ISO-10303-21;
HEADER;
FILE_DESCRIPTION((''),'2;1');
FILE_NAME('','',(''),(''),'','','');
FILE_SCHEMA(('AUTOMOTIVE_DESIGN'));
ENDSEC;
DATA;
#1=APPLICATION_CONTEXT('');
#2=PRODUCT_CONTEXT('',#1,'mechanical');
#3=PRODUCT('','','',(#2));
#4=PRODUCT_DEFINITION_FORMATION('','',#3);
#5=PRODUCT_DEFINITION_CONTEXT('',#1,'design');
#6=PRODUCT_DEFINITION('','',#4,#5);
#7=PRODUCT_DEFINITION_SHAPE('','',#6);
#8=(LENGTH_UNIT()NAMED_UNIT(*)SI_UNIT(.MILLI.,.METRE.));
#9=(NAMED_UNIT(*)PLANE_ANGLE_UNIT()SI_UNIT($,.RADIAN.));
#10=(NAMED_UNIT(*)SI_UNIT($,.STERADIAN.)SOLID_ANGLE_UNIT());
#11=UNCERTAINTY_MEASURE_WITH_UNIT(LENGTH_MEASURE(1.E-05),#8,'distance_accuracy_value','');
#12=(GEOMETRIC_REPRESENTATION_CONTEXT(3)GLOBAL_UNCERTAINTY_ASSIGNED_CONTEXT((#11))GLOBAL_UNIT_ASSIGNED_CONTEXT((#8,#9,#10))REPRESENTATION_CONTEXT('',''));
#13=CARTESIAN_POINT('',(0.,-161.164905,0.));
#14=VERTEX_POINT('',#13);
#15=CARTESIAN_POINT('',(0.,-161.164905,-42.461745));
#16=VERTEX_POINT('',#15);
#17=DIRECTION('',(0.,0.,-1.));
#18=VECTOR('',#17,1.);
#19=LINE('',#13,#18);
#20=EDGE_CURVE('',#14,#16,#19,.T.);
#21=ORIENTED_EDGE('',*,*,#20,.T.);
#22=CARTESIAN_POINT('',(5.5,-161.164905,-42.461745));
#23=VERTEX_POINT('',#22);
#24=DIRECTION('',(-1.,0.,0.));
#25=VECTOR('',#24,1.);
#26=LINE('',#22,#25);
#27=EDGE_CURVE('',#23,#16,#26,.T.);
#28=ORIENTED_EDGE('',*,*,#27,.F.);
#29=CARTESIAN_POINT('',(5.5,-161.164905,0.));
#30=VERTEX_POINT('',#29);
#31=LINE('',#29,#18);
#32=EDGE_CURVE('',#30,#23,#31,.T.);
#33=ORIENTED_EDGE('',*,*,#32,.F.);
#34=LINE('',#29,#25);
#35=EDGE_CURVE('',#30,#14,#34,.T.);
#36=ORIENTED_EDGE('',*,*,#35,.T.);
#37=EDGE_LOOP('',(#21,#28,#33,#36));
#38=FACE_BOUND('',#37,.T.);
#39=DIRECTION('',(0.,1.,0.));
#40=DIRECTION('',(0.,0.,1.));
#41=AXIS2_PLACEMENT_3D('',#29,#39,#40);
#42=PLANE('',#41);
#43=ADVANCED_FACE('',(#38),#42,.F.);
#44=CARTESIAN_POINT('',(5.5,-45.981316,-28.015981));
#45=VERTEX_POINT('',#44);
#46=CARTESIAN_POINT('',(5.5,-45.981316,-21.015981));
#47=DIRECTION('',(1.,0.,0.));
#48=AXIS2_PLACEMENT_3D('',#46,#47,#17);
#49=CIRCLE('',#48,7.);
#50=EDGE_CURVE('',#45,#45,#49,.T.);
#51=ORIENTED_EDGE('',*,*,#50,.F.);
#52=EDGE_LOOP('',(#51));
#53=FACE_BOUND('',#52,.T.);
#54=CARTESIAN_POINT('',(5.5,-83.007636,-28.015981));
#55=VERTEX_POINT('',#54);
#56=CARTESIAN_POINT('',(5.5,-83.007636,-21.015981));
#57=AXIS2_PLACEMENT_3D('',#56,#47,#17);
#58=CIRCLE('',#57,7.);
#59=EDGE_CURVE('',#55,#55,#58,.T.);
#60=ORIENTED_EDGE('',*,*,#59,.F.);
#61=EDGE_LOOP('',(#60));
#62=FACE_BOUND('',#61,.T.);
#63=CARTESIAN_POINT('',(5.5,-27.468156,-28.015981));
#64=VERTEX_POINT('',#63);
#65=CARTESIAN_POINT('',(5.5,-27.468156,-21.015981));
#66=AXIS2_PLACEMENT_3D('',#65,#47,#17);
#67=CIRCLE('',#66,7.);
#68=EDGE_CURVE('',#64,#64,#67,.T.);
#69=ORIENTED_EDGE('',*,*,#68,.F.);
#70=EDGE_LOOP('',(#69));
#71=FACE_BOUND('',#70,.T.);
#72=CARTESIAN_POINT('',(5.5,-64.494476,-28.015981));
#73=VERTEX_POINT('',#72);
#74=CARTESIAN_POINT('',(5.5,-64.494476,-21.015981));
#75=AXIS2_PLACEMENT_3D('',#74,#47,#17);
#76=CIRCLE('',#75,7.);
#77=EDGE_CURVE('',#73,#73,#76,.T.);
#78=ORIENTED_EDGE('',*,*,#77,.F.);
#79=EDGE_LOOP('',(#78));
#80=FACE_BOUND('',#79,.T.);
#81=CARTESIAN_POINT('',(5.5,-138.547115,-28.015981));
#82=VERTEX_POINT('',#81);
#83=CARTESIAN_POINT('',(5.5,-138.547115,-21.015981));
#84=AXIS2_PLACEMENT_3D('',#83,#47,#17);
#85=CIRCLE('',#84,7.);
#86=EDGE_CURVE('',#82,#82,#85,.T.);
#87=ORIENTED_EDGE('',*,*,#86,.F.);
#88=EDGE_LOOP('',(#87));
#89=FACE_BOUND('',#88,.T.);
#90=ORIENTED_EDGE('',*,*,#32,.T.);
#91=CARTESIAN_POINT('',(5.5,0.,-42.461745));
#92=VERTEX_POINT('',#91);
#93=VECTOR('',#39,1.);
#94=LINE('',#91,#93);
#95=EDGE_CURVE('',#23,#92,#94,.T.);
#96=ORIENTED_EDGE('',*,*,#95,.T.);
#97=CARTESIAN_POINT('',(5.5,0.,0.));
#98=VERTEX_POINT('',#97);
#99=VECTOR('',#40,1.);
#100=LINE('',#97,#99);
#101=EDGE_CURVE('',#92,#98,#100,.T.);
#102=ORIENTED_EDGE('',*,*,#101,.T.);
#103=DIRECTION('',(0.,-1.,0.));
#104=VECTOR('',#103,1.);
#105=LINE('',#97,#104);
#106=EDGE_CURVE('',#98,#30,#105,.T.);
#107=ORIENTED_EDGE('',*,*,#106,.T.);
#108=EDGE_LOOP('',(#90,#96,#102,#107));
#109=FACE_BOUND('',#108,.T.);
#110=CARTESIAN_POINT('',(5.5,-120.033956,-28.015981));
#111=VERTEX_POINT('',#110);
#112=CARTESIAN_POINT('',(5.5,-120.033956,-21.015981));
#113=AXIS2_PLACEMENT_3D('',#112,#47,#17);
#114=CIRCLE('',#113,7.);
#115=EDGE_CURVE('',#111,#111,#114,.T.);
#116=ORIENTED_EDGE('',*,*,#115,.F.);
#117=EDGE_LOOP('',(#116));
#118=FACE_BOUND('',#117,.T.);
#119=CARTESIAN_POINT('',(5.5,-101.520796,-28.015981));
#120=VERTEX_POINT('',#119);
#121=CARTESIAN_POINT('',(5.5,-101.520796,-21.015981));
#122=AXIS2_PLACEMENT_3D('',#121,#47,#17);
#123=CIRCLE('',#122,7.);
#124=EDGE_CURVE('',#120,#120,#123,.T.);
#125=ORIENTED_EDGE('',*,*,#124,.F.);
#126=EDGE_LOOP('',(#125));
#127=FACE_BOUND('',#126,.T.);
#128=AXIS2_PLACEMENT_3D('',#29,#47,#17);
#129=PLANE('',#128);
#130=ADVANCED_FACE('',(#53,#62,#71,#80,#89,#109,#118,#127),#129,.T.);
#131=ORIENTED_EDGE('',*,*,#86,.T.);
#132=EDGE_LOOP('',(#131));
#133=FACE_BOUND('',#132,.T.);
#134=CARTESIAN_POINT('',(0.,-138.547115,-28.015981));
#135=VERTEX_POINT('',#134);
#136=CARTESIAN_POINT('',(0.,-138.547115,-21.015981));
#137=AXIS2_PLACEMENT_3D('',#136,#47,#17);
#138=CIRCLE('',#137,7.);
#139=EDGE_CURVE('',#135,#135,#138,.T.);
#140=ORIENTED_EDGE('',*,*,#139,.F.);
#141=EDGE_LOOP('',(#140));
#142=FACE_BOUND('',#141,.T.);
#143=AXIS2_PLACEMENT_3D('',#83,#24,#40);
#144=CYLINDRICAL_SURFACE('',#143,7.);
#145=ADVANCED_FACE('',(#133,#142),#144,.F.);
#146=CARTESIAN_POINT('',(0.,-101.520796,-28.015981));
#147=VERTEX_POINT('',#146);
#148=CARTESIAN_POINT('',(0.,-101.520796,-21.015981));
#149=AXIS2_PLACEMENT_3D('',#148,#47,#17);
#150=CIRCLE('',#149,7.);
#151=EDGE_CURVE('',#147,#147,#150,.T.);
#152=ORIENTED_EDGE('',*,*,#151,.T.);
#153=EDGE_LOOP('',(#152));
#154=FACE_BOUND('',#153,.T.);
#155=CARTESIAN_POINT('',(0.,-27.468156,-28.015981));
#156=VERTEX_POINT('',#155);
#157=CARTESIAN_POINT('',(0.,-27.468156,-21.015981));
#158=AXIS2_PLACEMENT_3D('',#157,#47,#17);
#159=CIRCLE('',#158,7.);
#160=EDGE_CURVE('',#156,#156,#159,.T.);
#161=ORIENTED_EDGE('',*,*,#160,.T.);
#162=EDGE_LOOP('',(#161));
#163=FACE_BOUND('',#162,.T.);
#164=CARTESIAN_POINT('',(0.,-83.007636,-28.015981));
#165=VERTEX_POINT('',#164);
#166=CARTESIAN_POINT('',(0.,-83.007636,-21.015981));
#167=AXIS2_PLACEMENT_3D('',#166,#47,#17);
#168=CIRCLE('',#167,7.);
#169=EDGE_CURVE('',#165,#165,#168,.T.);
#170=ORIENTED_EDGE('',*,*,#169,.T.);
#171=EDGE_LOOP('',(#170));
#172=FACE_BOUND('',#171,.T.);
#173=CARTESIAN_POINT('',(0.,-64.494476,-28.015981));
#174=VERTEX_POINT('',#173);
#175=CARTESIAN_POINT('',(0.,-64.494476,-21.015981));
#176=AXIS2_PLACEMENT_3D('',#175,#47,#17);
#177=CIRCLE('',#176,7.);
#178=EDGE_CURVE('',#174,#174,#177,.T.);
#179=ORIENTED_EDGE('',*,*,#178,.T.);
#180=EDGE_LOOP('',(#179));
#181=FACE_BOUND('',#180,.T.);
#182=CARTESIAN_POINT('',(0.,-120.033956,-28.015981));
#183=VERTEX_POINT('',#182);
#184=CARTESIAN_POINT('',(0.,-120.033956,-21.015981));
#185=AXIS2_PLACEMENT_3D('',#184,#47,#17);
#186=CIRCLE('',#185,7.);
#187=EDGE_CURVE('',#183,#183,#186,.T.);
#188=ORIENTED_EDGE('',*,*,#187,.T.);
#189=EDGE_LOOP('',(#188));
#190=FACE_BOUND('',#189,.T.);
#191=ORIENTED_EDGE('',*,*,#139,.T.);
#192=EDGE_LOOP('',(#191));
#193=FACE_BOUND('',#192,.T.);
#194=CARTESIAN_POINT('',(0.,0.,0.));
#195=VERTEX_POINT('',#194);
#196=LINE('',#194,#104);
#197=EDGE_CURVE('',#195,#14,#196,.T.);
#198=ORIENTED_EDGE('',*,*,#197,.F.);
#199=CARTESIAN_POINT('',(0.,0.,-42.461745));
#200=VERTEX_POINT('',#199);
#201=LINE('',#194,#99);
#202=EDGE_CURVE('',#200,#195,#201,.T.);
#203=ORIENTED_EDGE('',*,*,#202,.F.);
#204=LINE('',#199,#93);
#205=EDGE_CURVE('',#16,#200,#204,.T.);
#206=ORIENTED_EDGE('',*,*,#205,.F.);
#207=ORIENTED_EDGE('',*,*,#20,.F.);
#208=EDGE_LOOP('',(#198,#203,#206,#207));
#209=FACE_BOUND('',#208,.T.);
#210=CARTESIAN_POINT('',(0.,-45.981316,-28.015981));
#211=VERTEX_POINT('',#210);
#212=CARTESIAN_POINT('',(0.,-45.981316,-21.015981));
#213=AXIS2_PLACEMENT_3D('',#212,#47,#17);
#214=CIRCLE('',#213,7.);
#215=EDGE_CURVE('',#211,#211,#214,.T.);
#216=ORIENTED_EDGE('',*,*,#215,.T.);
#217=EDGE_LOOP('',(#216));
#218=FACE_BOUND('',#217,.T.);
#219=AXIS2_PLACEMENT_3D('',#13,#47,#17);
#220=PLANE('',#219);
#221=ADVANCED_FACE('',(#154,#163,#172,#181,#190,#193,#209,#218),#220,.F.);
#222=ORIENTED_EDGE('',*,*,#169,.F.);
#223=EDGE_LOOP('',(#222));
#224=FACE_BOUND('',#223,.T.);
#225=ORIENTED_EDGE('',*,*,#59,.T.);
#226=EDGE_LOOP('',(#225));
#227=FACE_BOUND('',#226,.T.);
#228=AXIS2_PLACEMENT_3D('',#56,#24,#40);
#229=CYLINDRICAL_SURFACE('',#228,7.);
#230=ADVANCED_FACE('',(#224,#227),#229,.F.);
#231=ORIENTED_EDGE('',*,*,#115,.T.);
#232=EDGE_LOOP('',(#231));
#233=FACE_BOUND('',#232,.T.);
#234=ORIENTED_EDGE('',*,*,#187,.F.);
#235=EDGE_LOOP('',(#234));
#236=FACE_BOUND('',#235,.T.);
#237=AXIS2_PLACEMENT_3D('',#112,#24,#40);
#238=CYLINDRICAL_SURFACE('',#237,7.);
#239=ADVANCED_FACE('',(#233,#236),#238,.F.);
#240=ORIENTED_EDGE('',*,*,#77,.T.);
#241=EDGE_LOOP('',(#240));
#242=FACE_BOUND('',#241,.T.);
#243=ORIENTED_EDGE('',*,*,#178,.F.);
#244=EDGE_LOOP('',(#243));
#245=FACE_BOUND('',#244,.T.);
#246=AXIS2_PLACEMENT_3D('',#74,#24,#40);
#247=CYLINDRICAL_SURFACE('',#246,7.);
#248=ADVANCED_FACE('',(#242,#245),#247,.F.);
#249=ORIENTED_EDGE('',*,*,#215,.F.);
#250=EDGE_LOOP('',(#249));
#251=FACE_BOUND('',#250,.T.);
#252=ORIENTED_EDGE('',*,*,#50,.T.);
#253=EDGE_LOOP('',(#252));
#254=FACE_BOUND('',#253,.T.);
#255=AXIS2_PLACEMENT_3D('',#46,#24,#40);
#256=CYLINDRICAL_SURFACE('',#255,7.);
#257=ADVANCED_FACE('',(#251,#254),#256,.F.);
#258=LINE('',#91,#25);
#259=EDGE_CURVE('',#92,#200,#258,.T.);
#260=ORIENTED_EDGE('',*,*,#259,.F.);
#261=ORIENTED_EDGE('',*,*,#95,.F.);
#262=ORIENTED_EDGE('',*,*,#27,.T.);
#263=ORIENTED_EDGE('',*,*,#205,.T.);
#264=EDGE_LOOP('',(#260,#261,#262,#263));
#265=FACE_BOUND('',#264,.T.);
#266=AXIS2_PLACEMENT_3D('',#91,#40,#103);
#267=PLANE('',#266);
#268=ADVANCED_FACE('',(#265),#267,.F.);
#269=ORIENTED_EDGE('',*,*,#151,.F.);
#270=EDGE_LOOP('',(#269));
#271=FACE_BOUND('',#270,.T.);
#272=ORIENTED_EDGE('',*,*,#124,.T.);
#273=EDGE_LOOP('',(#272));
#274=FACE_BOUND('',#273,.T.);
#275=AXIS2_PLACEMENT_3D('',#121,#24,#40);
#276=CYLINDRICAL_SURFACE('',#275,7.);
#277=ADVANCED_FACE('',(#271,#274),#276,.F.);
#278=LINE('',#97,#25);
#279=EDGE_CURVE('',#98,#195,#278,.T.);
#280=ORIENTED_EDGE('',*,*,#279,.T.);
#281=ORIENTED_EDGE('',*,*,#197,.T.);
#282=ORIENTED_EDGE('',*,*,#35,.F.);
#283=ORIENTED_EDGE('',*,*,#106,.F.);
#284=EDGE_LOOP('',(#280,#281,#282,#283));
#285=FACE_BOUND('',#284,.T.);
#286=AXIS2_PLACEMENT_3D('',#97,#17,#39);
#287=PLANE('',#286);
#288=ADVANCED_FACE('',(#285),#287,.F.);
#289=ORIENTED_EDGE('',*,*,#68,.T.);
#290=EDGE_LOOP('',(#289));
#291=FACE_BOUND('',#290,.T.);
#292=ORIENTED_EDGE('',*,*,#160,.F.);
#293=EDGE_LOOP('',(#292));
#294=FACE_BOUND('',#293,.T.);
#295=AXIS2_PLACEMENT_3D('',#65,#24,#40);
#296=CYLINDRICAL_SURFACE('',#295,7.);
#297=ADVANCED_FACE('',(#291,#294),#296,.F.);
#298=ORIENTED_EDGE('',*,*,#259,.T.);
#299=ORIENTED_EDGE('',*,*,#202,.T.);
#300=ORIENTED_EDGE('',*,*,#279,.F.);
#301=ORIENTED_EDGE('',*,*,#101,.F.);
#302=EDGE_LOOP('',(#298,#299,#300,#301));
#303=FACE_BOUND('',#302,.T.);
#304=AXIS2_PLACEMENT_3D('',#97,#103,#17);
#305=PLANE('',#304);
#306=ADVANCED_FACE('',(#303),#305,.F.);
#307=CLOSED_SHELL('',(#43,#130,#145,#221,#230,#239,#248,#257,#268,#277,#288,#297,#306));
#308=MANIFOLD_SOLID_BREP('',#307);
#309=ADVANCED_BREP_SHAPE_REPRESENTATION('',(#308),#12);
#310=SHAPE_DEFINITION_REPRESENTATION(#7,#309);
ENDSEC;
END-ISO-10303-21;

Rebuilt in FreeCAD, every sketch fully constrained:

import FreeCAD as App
import Part
import Sketcher

doc = App.newDocument("Part")
body = doc.addObject("PartDesign::Body", "Body")

sketch1 = doc.addObject("Sketcher::SketchObject", "Sketch")
body.addObject(sketch1)
sketch1.AttachmentSupport = (doc.YZ_Plane, [""])
sketch1.MapMode = "FlatFace"
sketch1.addGeometry(Part.LineSegment(App.Vector(0, 0, 0), App.Vector(-161.164905, 0, 0)), False)
sketch1.addGeometry(Part.LineSegment(App.Vector(-161.164905, 0, 0), App.Vector(-161.164905, -42.461745, 0)), False)
sketch1.addGeometry(Part.LineSegment(App.Vector(-161.164905, -42.461745, 0), App.Vector(0, -42.461745, 0)), False)
sketch1.addGeometry(Part.LineSegment(App.Vector(0, -42.461745, 0), App.Vector(0, 0, 0)), False)
sketch1.addGeometry(Part.Circle(App.Vector(-138.547115, -21.015981, 0), App.Vector(0, 0, 1), 7), False)
sketch1.addGeometry(Part.Circle(App.Vector(-120.033956, -21.015981, 0), App.Vector(0, 0, 1), 7), False)
sketch1.addGeometry(Part.Circle(App.Vector(-101.520796, -21.015981, 0), App.Vector(0, 0, 1), 7), False)
sketch1.addGeometry(Part.Circle(App.Vector(-83.007636, -21.015981, 0), App.Vector(0, 0, 1), 7), False)
sketch1.addGeometry(Part.Circle(App.Vector(-64.494476, -21.015981, 0), App.Vector(0, 0, 1), 7), False)
sketch1.addGeometry(Part.Circle(App.Vector(-45.981316, -21.015981, 0), App.Vector(0, 0, 1), 7), False)
sketch1.addGeometry(Part.Circle(App.Vector(-27.468156, -21.015981, 0), App.Vector(0, 0, 1), 7), False)
sketch1.addConstraint(Sketcher.Constraint("Coincident", 0, 2, 1, 1))
sketch1.addConstraint(Sketcher.Constraint("Coincident", 1, 2, 2, 1))
sketch1.addConstraint(Sketcher.Constraint("Coincident", 2, 2, 3, 1))
sketch1.addConstraint(Sketcher.Constraint("Coincident", 3, 2, 0, 1))
sketch1.addConstraint(Sketcher.Constraint("Horizontal", 0))
sketch1.addConstraint(Sketcher.Constraint("Vertical", 1))
sketch1.addConstraint(Sketcher.Constraint("Horizontal", 2))
sketch1.addConstraint(Sketcher.Constraint("Vertical", 3))
sketch1.addConstraint(Sketcher.Constraint("Coincident", 3, 2, -1, 1))
sketch1.addConstraint(Sketcher.Constraint("Equal", 4, 5))
sketch1.addConstraint(Sketcher.Constraint("Equal", 5, 6))
sketch1.addConstraint(Sketcher.Constraint("Equal", 6, 7))
sketch1.addConstraint(Sketcher.Constraint("Equal", 7, 8))
sketch1.addConstraint(Sketcher.Constraint("Equal", 8, 9))
sketch1.addConstraint(Sketcher.Constraint("Equal", 9, 10))
sketch1.addConstraint(Sketcher.Constraint("Horizontal", 4, 3, 5, 3))
sketch1.addConstraint(Sketcher.Constraint("Horizontal", 5, 3, 6, 3))
sketch1.addConstraint(Sketcher.Constraint("Horizontal", 6, 3, 7, 3))
sketch1.addConstraint(Sketcher.Constraint("Horizontal", 7, 3, 8, 3))
sketch1.addConstraint(Sketcher.Constraint("Horizontal", 8, 3, 9, 3))
sketch1.addConstraint(Sketcher.Constraint("Horizontal", 9, 3, 10, 3))
sketch1.addConstraint(Sketcher.Constraint("Diameter", 4, 14.0))
sketch1.addConstraint(Sketcher.Constraint("DistanceX", 4, 3, 9, 3, 92.5658))
sketch1.addConstraint(Sketcher.Constraint("DistanceX", 5, 3, 10, 3, 92.5658))
sketch1.addConstraint(Sketcher.Constraint("DistanceX", 0, 2, 0, 1, 161.164905))
sketch1.addConstraint(Sketcher.Constraint("DistanceY", 1, 2, 1, 1, 42.461745))
sketch1.addConstraint(Sketcher.Constraint("DistanceY", 4, 3, -1, 1, 21.015981))
sketch1.addConstraint(Sketcher.Constraint("DistanceX", 4, 3, 5, 3, 18.51316))
sketch1.addConstraint(Sketcher.Constraint("DistanceX", 5, 3, 6, 3, 18.51316))
sketch1.addConstraint(Sketcher.Constraint("DistanceX", 6, 3, 7, 3, 18.51316))
sketch1.addConstraint(Sketcher.Constraint("DistanceX", 7, 3, 8, 3, 18.51316))
sketch1.addConstraint(Sketcher.Constraint("DistanceX", 0, 2, 4, 3, 22.617789))
pad1 = doc.addObject("PartDesign::Pad", "Pad")
body.addObject(pad1)
pad1.Profile = sketch1
pad1.Length = 5.5

doc.recompute()
